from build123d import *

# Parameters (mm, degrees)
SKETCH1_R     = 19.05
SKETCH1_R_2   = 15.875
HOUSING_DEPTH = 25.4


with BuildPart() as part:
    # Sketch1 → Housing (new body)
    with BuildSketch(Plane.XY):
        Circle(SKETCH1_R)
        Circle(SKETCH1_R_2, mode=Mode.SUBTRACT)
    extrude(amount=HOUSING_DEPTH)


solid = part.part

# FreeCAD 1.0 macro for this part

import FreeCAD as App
import Part
import Sketcher

V = App.Vector
Q = App.Units.Quantity

doc = App.newDocument("Part")
body = doc.addObject("PartDesign::Body", "Body")

# Sketch on XY plane
sketch1 = doc.addObject("Sketcher::SketchObject", "Sketch")
body.addObject(sketch1)
sketch1.AttachmentSupport = (doc.XY_Plane, [""])
sketch1.MapMode = "FlatFace"
sketch1.addGeometry(Part.Circle(V(0, 0, 0), V(0, 0, 1), 19), False)
sketch1.addGeometry(Part.Circle(V(0, 0, 0), V(0, 0, 1), 16), False)
sketch1.addConstraint(Sketcher.Constraint("Coincident", 0, 3, -1, 1))
sketch1.addConstraint(Sketcher.Constraint("Coincident", 1, 3, -1, 1))
sketch1.addConstraint(Sketcher.Constraint("Diameter", 0, Q("1.5 in")))
sketch1.addConstraint(Sketcher.Constraint("Diameter", 1, Q("1.25 in")))
pad1 = doc.addObject("PartDesign::Pad", "Pad")
body.addObject(pad1)
pad1.Profile = sketch1
pad1.Length = Q("1 in")

doc.recompute()
